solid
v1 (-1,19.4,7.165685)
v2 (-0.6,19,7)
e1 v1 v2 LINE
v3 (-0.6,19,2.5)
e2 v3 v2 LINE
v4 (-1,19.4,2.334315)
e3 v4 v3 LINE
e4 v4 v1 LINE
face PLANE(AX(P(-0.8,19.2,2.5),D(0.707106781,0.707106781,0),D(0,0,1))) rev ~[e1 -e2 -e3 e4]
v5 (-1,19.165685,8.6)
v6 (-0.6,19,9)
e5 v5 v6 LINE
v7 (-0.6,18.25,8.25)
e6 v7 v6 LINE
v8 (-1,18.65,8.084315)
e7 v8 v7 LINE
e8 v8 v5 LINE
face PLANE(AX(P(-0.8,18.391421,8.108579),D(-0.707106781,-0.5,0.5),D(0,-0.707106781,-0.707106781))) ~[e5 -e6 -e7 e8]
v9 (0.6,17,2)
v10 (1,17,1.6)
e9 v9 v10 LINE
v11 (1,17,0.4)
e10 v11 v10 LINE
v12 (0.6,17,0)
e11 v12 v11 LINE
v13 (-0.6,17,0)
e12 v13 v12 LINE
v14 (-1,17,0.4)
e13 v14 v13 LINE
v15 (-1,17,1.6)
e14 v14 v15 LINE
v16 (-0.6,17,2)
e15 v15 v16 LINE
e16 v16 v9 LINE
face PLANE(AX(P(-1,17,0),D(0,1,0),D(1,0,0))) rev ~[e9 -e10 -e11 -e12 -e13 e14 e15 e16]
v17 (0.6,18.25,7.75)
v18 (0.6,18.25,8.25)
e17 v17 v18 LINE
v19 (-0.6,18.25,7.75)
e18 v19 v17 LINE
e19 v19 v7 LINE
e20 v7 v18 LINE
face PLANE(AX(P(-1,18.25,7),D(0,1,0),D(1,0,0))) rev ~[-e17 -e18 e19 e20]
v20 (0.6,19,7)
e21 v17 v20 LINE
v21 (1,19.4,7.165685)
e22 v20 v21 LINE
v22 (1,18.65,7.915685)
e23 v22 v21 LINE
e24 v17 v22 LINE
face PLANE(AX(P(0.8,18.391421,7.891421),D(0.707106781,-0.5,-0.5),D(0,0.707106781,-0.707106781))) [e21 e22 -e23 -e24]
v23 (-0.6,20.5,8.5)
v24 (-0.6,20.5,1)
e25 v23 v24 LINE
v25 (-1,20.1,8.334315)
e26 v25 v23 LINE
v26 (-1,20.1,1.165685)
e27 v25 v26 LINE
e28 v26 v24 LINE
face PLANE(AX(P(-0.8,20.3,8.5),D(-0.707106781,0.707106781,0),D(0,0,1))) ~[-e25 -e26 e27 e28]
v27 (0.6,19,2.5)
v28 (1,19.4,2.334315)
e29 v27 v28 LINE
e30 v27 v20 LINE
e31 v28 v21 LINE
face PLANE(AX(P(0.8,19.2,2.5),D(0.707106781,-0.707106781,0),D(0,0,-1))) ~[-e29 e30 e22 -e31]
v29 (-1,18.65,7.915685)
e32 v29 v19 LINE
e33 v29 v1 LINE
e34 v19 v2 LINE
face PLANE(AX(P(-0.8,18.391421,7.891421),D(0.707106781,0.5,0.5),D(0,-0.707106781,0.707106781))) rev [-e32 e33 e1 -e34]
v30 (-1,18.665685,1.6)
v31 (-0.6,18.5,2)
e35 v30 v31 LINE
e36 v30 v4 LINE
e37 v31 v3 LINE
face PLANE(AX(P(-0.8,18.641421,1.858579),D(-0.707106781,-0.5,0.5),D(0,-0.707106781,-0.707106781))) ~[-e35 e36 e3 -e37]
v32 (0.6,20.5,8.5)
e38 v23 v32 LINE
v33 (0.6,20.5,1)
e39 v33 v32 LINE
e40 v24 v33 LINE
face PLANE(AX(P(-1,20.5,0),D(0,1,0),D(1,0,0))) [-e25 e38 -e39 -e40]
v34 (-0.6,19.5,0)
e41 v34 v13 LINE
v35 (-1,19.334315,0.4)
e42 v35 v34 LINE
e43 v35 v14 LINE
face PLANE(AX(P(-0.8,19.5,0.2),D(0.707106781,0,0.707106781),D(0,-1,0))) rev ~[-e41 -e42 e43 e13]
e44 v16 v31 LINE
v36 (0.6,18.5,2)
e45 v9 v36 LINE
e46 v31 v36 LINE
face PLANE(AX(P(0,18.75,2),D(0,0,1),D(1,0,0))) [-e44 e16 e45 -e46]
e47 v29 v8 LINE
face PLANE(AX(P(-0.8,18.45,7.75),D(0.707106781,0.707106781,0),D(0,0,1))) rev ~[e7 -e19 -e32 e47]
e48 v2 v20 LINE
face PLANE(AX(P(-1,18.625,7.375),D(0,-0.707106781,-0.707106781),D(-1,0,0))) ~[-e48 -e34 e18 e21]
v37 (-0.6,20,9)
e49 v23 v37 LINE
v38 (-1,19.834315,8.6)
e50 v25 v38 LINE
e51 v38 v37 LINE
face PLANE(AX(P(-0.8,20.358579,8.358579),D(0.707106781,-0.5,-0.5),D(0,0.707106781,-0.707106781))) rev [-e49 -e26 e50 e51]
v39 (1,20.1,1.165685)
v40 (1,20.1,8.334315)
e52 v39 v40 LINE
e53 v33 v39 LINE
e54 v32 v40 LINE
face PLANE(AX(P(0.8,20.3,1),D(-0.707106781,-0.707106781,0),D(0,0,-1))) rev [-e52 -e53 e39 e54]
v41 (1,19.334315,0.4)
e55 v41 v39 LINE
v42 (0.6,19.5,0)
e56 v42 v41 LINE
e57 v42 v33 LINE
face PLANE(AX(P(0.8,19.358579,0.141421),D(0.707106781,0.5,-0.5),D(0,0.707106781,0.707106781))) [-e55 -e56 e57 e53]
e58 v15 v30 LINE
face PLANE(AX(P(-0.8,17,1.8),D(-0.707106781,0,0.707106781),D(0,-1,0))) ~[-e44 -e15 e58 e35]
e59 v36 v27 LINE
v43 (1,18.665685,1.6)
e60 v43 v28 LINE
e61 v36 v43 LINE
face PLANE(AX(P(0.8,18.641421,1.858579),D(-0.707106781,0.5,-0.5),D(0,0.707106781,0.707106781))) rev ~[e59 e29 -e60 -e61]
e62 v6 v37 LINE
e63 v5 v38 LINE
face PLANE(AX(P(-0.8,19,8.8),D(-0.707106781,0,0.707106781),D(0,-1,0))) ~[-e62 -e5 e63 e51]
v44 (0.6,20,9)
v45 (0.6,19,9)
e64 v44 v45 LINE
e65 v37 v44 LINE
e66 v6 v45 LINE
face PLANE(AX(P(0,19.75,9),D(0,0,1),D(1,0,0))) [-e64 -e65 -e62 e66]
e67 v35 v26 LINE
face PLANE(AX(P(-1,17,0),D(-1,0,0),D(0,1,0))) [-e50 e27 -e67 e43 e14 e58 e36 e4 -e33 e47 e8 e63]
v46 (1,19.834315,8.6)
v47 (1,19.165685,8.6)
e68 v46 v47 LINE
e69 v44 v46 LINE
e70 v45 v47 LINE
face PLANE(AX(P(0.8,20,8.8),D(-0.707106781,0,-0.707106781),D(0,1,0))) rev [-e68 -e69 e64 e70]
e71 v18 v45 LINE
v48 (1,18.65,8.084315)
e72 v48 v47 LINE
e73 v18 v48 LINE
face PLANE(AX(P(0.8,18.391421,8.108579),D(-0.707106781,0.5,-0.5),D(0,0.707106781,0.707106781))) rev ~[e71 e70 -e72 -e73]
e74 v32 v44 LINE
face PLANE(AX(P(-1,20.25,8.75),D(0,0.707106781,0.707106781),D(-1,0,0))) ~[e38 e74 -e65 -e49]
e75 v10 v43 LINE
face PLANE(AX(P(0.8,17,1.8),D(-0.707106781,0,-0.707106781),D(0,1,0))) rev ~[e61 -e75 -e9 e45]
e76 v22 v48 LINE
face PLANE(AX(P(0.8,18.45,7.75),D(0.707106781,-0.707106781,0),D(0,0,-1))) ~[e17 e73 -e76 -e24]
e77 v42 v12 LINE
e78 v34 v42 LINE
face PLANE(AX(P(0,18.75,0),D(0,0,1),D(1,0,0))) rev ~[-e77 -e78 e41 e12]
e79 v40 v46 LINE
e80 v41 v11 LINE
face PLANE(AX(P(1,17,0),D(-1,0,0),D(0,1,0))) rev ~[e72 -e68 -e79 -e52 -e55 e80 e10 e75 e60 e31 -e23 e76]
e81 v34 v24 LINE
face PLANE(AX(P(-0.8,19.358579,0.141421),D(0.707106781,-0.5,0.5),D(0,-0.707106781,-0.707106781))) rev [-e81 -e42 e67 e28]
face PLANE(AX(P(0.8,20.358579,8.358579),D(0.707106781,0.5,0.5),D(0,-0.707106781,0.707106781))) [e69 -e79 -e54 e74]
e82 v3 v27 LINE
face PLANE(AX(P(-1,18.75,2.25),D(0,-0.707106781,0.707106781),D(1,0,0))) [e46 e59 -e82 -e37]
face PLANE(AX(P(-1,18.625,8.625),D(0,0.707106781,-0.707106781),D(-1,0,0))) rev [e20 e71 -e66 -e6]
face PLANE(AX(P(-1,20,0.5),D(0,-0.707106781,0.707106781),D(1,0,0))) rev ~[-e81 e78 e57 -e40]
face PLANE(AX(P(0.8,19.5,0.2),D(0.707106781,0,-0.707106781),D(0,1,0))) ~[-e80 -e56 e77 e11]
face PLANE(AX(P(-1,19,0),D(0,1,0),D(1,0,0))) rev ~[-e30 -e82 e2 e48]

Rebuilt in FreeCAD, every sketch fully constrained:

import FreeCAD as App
import Part
import Sketcher
from FreeCAD import Vector


def edges_at(feature, points):
    """Names of the edges that pass closest to the given points."""
    edges = feature.Shape.Edges
    near = lambda p: min(range(len(edges)), key=lambda i: edges[i].distToShape(Part.Vertex(*p))[0])
    return sorted({f"Edge{near(p) + 1}" for p in points})


def add_polygon(sketch, points):
    """Adds a closed chain of lines whose ends are joined by coincident constraints."""
    first, n = sketch.GeometryCount, len(points)
    for a, b in zip(points, points[1:] + points[:1]):
        sketch.addGeometry(Part.LineSegment(App.Vector(*a, 0), App.Vector(*b, 0)), False)
    for i in range(n):
        sketch.addConstraint(Sketcher.Constraint("Coincident", first + i, 2, first + (i + 1) % n, 1))

doc = App.newDocument("Part")
body = doc.addObject("PartDesign::Body", "Body")

sketch1 = doc.addObject("Sketcher::SketchObject", "Sketch")
body.addObject(sketch1)
sketch1.AttachmentSupport = (doc.XY_Plane, [""])
sketch1.MapMode = "FlatFace"
sketch1.AttachmentOffset = App.Placement(Vector(0, 0, 7), App.Rotation())
add_polygon(sketch1, [(-1, 19.8), (-1, 18.2), (1, 18.2), (1, 19.8)])
sketch1.addConstraint([
    Sketcher.Constraint("Vertical", 0),
    Sketcher.Constraint("Horizontal", 1),
    Sketcher.Constraint("Vertical", 2),
    Sketcher.Constraint("Horizontal", 3),
    Sketcher.Constraint("DistanceX", 1, 1, 1, 2, 2.0),
    Sketcher.Constraint("DistanceY", 0, 2, 0, 1, 1.5),
    Sketcher.Constraint("DistanceX", 0, 2, -1, 1, 1.0),
    Sketcher.Constraint("DistanceY", -1, 1, 0, 2, 18.25),
])
pad1 = doc.addObject("PartDesign::Pad", "Pad")
body.addObject(pad1)
pad1.Profile = sketch1
pad1.Length = 2
doc.recompute()

chamfer = doc.addObject("PartDesign::Chamfer", "Chamfer")
body.addObject(chamfer)
chamfer.Base = (pad1, edges_at(pad1, [(0, 18.25, 7), (0, 18.25, 9)]))
chamfer.Size = 0.75
body2 = doc.addObject("PartDesign::Body", "Body001")

sketch2 = doc.addObject("Sketcher::SketchObject", "Sketch001")
body2.addObject(sketch2)
sketch2.AttachmentSupport = (doc.getObject("XY_Plane001"), [""])
sketch2.MapMode = "FlatFace"
add_polygon(sketch2, [(-1, 20.5), (-1, 17), (1, 17), (1, 20.5)])
sketch2.addConstraint([
    Sketcher.Constraint("Vertical", 0),
    Sketcher.Constraint("Horizontal", 1),
    Sketcher.Constraint("Vertical", 2),
    Sketcher.Constraint("Horizontal", 3),
    Sketcher.Constraint("DistanceX", 1, 1, 1, 2, 2.0),
    Sketcher.Constraint("DistanceY", 0, 2, 0, 1, 3.5),
    Sketcher.Constraint("DistanceX", 0, 2, -1, 1, 1.0),
    Sketcher.Constraint("DistanceY", -1, 1, 0, 2, 17.0),
])
pad2 = doc.addObject("PartDesign::Pad", "Pad001")
body2.addObject(pad2)
pad2.Profile = sketch2
pad2.Length = 2
body3 = doc.addObject("PartDesign::Body", "Body002")

sketch3 = doc.addObject("Sketcher::SketchObject", "Sketch002")
body3.addObject(sketch3)
sketch3.AttachmentSupport = (doc.getObject("XY_Plane002"), [""])
sketch3.MapMode = "FlatFace"
add_polygon(sketch3, [(-1, 20.5), (-1, 19), (1, 19), (1, 20.5)])
sketch3.addConstraint([
    Sketcher.Constraint("Vertical", 0),
    Sketcher.Constraint("Horizontal", 1),
    Sketcher.Constraint("Vertical", 2),
    Sketcher.Constraint("Horizontal", 3),
    Sketcher.Constraint("DistanceX", 1, 1, 1, 2, 2.0),
    Sketcher.Constraint("DistanceY", 0, 2, 0, 1, 1.5),
    Sketcher.Constraint("DistanceX", 0, 2, -1, 1, 1.0),
    Sketcher.Constraint("DistanceY", -1, 1, 0, 2, 19.0),
])
pad3 = doc.addObject("PartDesign::Pad", "Pad002")
body3.addObject(pad3)
pad3.Profile = sketch3
pad3.Length = 9
doc.recompute()

chamfer2 = doc.addObject("PartDesign::Chamfer", "Chamfer001")
body3.addObject(chamfer2)
chamfer2.Base = (pad3, edges_at(pad3, [(0, 20.5, 9)]))
chamfer2.Size = 0.5
doc.recompute()

boolean = doc.addObject("PartDesign::Boolean", "Boolean")
body3.addObject(boolean)
boolean.Type = "Fuse"
boolean.addObjects([body])
doc.recompute()

boolean2 = doc.addObject("PartDesign::Boolean", "Boolean001")
body3.addObject(boolean2)
boolean2.Type = "Fuse"
boolean2.addObjects([body2])
doc.recompute()

chamfer3 = doc.addObject("PartDesign::Chamfer", "Chamfer002")
body3.addObject(chamfer3)
chamfer3.Base = (boolean2, edges_at(boolean2, [(0, 20.5, 0)]))
chamfer3.Size = 1
doc.recompute()

chamfer4 = doc.addObject("PartDesign::Chamfer", "Chamfer003")
body3.addObject(chamfer4)
chamfer4.Base = (chamfer3, edges_at(chamfer3, [(0, 19, 2)]))
chamfer4.Size = 0.5
doc.recompute()

chamfer5 = doc.addObject("PartDesign::Chamfer", "Chamfer004")
body3.addObject(chamfer5)
chamfer5.Base = (chamfer4, edges_at(chamfer4, [
    (-1, 17.75, 2),
    (-1, 18.75, 2.25),
    (-1, 19, 4.75),
    (-1, 18.625, 7.375),
    (-1, 18.25, 8),
    (-1, 18.625, 8.625),
    (-1, 19.5, 9),
    (-1, 20.25, 8.75),
    (-1, 20.5, 4.75),
    (-1, 20, 0.5),
    (-1, 18.25, 0),
    (1, 17.75, 2),
    (1, 18.75, 2.25),
    (1, 19, 4.75),
    (1, 18.25, 0),
    (1, 18.625, 7.375),
    (1, 20, 0.5),
    (1, 18.25, 8),
    (1, 20.5, 4.75),
    (1, 18.625, 8.625),
    (1, 20.25, 8.75),
    (1, 19.5, 9),
]))
chamfer5.Size = 0.4

doc.recompute()
